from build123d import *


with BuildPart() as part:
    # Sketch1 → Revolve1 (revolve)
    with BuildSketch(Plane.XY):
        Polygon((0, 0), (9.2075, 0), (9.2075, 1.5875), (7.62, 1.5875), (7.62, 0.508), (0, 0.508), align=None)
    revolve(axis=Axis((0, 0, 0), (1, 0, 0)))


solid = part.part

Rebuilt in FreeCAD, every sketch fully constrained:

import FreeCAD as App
import Part
import Sketcher

V = App.Vector
Q = App.Units.Quantity


def add_polygon(sketch, points):
    """Adds a closed chain of lines whose ends are joined by coincident constraints."""
    first, n = sketch.GeometryCount, len(points)
    for a, b in zip(points, points[1:] + points[:1]):
        sketch.addGeometry(Part.LineSegment(App.Vector(*a, 0), App.Vector(*b, 0)), False)
    for i in range(n):
        sketch.addConstraint(Sketcher.Constraint("Coincident", first + i, 2, first + (i + 1) % n, 1))

doc = App.newDocument("Part")
body = doc.addObject("PartDesign::Body", "Body")

sketch1 = body.newObject("Sketcher::SketchObject", "Sketch")
sketch1.AttachmentSupport = (doc.getObject("XY_Plane"), [""])
sketch1.MapMode = "FlatFace"
add_polygon(sketch1, [(0, 0), (9.2, 0), (9.2, 1.6), (7.6, 1.6), (7.6, 0.5), (0, 0.5)])
sketch1.addConstraint([
    Sketcher.Constraint("Horizontal", 0),
    Sketcher.Constraint("Vertical", 1),
    Sketcher.Constraint("Horizontal", 2),
    Sketcher.Constraint("Vertical", 3),
    Sketcher.Constraint("Horizontal", 4),
    Sketcher.Constraint("Vertical", 5),
    Sketcher.Constraint("Coincident", 5, 2, -1, 1),
    Sketcher.Constraint("Equal", 2, 1),
    Sketcher.Constraint("DistanceX", 4, 2, 4, 1, Q("0.3 in")),
    Sketcher.Constraint("DistanceY", 5, 2, 5, 1, Q("0.02 in")),
    Sketcher.Constraint("DistanceX", 2, 2, 2, 1, Q("0.0625 in")),
])
revolution = body.newObject("PartDesign::Revolution", "Revolution")
revolution.Profile = sketch1
revolution.ReferenceAxis = (sketch1, ["H_Axis"])
revolution.Angle = 360

doc.recompute()
